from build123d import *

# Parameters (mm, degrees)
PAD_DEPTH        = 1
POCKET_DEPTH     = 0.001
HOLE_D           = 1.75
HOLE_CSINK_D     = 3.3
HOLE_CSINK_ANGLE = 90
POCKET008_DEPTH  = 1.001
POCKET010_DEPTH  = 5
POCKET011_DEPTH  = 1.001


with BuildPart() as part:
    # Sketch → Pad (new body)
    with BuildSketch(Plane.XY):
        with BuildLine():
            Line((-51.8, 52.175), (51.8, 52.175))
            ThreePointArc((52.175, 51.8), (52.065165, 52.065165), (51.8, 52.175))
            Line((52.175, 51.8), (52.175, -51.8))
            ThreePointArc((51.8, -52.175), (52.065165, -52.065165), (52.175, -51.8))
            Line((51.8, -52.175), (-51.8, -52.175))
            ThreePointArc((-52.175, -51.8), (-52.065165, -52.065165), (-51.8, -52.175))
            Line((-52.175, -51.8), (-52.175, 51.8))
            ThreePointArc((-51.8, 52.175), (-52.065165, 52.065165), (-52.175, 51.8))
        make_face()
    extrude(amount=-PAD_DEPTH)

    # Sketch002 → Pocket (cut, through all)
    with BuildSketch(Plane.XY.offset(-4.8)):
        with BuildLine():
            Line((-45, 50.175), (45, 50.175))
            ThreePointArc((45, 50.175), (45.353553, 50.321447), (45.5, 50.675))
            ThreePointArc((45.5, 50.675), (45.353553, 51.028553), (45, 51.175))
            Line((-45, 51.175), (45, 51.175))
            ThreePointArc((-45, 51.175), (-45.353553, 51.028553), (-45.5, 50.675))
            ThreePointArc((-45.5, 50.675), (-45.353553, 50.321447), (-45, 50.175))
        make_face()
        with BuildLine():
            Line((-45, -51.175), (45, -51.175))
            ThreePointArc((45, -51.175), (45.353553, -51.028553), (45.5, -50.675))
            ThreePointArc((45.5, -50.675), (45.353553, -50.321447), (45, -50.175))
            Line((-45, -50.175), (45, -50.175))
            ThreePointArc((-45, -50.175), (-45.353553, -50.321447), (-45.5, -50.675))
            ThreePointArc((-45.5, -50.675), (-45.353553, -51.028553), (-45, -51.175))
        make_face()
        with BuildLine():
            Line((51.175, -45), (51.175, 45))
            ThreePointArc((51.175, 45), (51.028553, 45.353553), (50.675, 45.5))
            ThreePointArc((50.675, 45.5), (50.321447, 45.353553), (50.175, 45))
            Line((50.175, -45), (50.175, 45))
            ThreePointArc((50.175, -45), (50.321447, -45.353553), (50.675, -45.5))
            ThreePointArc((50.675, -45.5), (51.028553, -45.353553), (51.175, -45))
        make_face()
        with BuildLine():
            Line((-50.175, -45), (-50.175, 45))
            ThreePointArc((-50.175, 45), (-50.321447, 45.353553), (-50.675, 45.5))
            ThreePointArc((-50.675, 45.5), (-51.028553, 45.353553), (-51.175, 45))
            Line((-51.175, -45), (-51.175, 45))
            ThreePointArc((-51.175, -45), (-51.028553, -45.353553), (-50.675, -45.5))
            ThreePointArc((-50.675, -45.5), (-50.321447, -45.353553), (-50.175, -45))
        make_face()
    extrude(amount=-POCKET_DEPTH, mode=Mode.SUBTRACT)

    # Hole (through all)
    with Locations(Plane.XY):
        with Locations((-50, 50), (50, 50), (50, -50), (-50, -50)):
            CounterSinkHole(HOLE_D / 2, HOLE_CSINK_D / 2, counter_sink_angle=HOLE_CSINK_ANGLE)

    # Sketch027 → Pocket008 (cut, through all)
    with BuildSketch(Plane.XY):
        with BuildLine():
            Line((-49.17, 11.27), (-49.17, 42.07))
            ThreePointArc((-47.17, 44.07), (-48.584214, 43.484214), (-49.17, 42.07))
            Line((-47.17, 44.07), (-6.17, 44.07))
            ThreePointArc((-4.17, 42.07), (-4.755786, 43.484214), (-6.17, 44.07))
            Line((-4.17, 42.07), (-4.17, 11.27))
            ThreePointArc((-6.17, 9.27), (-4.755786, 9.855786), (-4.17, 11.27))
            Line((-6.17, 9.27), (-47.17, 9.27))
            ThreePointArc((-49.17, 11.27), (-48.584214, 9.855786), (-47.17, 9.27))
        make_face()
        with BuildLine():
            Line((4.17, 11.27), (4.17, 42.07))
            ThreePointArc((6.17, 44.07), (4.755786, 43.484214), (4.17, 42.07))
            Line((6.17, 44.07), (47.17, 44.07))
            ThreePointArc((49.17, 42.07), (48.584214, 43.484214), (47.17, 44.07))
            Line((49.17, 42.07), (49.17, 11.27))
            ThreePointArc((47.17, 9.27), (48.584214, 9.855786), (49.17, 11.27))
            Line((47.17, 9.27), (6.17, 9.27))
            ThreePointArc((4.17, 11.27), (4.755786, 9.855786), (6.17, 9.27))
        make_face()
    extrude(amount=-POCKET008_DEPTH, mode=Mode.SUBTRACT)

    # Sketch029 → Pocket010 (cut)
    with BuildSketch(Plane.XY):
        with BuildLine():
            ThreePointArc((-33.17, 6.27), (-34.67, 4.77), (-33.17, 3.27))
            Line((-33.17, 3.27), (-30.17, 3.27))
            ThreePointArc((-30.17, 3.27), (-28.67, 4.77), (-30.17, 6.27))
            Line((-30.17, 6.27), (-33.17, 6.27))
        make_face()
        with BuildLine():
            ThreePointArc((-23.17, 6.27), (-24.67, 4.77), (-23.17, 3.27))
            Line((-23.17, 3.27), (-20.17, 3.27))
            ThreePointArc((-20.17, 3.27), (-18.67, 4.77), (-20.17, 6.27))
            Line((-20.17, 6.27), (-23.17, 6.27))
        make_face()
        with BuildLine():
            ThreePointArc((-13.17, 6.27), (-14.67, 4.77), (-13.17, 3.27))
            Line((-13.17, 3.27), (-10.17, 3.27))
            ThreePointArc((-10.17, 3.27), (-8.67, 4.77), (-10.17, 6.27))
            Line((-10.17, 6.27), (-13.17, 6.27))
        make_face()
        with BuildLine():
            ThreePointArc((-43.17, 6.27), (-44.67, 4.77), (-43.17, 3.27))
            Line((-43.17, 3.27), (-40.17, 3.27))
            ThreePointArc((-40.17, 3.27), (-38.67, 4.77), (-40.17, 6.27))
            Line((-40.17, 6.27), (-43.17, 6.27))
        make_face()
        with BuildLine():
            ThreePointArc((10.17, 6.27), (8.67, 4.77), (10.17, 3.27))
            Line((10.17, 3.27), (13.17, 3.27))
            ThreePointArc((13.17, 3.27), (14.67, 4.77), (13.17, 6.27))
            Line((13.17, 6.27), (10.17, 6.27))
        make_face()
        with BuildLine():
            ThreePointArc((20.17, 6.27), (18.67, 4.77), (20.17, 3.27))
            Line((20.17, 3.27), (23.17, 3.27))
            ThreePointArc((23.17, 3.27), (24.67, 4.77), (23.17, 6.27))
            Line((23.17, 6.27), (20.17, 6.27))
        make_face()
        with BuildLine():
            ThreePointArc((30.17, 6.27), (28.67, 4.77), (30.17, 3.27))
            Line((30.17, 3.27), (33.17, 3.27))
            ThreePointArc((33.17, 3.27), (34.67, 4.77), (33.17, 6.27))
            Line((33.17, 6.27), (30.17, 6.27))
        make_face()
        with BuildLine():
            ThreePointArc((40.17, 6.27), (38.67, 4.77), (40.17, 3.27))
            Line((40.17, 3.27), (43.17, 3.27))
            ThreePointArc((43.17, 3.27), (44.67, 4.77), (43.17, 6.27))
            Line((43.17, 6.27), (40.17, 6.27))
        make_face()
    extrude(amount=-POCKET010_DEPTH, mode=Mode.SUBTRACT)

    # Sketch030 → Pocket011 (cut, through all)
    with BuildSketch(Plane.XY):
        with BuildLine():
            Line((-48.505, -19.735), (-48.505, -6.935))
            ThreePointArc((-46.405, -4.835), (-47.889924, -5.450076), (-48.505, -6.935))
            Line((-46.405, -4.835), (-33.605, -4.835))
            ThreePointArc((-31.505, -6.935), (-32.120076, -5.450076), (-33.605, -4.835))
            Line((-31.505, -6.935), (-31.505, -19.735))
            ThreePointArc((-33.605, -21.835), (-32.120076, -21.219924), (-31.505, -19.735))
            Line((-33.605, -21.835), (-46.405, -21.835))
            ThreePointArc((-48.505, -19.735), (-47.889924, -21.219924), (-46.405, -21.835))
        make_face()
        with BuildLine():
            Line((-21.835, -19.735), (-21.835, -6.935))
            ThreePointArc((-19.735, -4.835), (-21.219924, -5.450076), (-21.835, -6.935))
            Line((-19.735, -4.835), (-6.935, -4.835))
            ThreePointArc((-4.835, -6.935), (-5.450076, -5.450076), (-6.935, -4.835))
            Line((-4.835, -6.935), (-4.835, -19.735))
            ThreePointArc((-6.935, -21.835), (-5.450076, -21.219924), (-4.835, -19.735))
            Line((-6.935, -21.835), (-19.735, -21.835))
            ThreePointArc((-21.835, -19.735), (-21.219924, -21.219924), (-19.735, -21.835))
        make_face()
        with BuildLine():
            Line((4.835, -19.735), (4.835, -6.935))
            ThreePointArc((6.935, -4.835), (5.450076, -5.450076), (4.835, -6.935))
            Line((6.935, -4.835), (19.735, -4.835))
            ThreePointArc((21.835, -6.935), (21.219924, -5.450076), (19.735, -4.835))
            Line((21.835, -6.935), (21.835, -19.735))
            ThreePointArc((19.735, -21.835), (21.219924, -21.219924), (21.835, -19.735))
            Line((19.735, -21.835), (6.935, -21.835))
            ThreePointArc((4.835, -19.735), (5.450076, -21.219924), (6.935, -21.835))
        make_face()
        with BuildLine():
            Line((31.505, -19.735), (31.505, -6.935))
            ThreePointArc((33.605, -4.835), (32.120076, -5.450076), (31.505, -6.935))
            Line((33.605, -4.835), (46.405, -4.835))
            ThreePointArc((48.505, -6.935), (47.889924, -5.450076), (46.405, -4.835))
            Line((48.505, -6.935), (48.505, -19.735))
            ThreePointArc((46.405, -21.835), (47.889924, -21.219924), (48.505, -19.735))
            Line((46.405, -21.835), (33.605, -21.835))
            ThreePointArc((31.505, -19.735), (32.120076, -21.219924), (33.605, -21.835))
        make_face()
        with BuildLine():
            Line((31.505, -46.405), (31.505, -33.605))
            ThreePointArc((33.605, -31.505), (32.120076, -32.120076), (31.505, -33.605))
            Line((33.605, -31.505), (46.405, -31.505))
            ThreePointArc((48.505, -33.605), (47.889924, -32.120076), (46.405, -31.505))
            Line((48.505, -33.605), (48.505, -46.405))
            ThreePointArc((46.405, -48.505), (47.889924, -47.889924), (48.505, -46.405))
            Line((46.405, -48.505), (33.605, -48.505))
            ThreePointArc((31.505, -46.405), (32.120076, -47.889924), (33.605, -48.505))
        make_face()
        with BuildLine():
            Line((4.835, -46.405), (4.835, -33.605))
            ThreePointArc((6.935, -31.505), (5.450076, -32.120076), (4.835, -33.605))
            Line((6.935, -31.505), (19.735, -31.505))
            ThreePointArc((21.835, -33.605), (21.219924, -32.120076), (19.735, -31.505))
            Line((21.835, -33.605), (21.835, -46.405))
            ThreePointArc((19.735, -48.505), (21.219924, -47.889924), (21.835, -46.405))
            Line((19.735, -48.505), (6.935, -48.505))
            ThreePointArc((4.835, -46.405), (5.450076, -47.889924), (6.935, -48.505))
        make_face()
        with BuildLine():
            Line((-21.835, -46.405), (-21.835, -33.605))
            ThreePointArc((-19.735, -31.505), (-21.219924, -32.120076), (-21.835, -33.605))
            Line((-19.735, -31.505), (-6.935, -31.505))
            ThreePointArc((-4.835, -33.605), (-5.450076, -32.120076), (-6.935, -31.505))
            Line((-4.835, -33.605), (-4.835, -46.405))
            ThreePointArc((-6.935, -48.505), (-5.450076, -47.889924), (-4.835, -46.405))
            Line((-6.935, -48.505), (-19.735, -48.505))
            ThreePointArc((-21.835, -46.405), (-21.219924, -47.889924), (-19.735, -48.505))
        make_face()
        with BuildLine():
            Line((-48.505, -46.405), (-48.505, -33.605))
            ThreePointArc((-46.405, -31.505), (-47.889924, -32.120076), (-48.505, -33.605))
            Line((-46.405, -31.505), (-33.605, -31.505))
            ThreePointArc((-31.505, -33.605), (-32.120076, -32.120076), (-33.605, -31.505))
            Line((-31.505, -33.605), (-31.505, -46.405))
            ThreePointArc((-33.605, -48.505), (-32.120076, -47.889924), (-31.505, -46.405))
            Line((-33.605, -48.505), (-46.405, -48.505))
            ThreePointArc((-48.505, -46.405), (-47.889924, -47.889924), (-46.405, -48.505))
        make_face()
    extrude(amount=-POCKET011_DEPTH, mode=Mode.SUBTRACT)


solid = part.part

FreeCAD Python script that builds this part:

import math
import FreeCAD as App
import Part
import Sketcher

doc = App.newDocument("Part")
body = doc.addObject("PartDesign::Body", "Body")

sketch1 = body.newObject("Sketcher::SketchObject", "Sketch")
sketch1.AttachmentSupport = (doc.getObject("XY_Plane"), [""])
sketch1.MapMode = "FlatFace"
sketch1.addGeometry(Part.LineSegment(App.Vector(51.8, 52.17, 0), App.Vector(-51.8, 52.17, 0)), False)
sketch1.addGeometry(Part.ArcOfCircle(Part.Circle(App.Vector(-51.8, 51.8, 0), App.Vector(0, 0, 1), 0.38), math.radians(90), math.radians(180)), False)
sketch1.addGeometry(Part.LineSegment(App.Vector(-52.17, 51.8, 0), App.Vector(-52.17, -51.8, 0)), False)
sketch1.addGeometry(Part.ArcOfCircle(Part.Circle(App.Vector(-51.8, -51.8, 0), App.Vector(0, 0, 1), 0.38), math.radians(-180), math.radians(-90)), False)
sketch1.addGeometry(Part.LineSegment(App.Vector(-51.8, -52.17, 0), App.Vector(51.8, -52.17, 0)), False)
sketch1.addGeometry(Part.ArcOfCircle(Part.Circle(App.Vector(51.8, -51.8, 0), App.Vector(0, 0, 1), 0.38), math.radians(-90), math.radians(0)), False)
sketch1.addGeometry(Part.LineSegment(App.Vector(52.17, -51.8, 0), App.Vector(52.17, 51.8, 0)), False)
sketch1.addGeometry(Part.ArcOfCircle(Part.Circle(App.Vector(51.8, 51.8, 0), App.Vector(0, 0, 1), 0.38), math.radians(0), math.radians(90)), False)
sketch1.addConstraint(Sketcher.Constraint("Tangent", 0, 2, 1, 1))
sketch1.addConstraint(Sketcher.Constraint("Tangent", 1, 2, 2, 1))
sketch1.addConstraint(Sketcher.Constraint("Tangent", 2, 2, 3, 1))
sketch1.addConstraint(Sketcher.Constraint("Tangent", 3, 2, 4, 1))
sketch1.addConstraint(Sketcher.Constraint("Tangent", 4, 2, 5, 1))
sketch1.addConstraint(Sketcher.Constraint("Tangent", 5, 2, 6, 1))
sketch1.addConstraint(Sketcher.Constraint("Tangent", 6, 2, 7, 1))
sketch1.addConstraint(Sketcher.Constraint("Tangent", 7, 2, 0, 1))
sketch1.addConstraint(Sketcher.Constraint("Horizontal", 0))
sketch1.addConstraint(Sketcher.Constraint("Vertical", 2))
sketch1.addConstraint(Sketcher.Constraint("Horizontal", 4))
sketch1.addConstraint(Sketcher.Constraint("Vertical", 6))
sketch1.addConstraint(Sketcher.Constraint("Equal", 1, 3))
sketch1.addConstraint(Sketcher.Constraint("Equal", 3, 5))
sketch1.addConstraint(Sketcher.Constraint("Equal", 5, 7))
sketch1.addConstraint(Sketcher.Constraint("Symmetric", 1, 3, 5, 3, -1, 1))
sketch1.addConstraint(Sketcher.Constraint("Equal", 4, 2))
sketch1.addConstraint(Sketcher.Constraint("DistanceX", 0, 2, 0, 1, 103.6))
sketch1.addConstraint(Sketcher.Constraint("Radius", 1, 0.375))
pad1 = body.newObject("PartDesign::Pad", "Pad")
pad1.Profile = sketch1
pad1.Length = 1
pad1.Reversed = True

sketch2 = body.newObject("Sketcher::SketchObject", "Sketch001")
sketch2.AttachmentSupport = (doc.getObject("XY_Plane"), [""])
sketch2.MapMode = "FlatFace"
sketch2.AttachmentOffset = App.Placement(App.Vector(0, 0, -4.8), App.Rotation())
sketch2.addGeometry(Part.LineSegment(App.Vector(-45, 50.2, 0), App.Vector(45, 50.2, 0)), False)
sketch2.addGeometry(Part.ArcOfCircle(Part.Circle(App.Vector(45, 50.7, 0), App.Vector(0, 0, 1), 0.5), math.radians(-90), math.radians(0)), False)
sketch2.addGeometry(Part.ArcOfCircle(Part.Circle(App.Vector(45, 50.7, 0), App.Vector(0, 0, 1), 0.5), math.radians(0), math.radians(90)), False)
sketch2.addGeometry(Part.LineSegment(App.Vector(45, 51.2, 0), App.Vector(-45, 51.2, 0)), False)
sketch2.addGeometry(Part.ArcOfCircle(Part.Circle(App.Vector(-45, 50.7, 0), App.Vector(0, 0, 1), 0.5), math.radians(90), math.radians(180)), False)
sketch2.addGeometry(Part.ArcOfCircle(Part.Circle(App.Vector(-45, 50.7, 0), App.Vector(0, 0, 1), 0.5), math.radians(-180), math.radians(-90)), False)
sketch2.addGeometry(Part.LineSegment(App.Vector(-45, -51.2, 0), App.Vector(45, -51.2, 0)), False)
sketch2.addGeometry(Part.ArcOfCircle(Part.Circle(App.Vector(45, -50.7, 0), App.Vector(0, 0, 1), 0.5), math.radians(-90), math.radians(0)), False)
sketch2.addGeometry(Part.ArcOfCircle(Part.Circle(App.Vector(45, -50.7, 0), App.Vector(0, 0, 1), 0.5), math.radians(0), math.radians(90)), False)
sketch2.addGeometry(Part.LineSegment(App.Vector(45, -50.2, 0), App.Vector(-45, -50.2, 0)), False)
sketch2.addGeometry(Part.ArcOfCircle(Part.Circle(App.Vector(-45, -50.7, 0), App.Vector(0, 0, 1), 0.5), math.radians(90), math.radians(180)), False)
sketch2.addGeometry(Part.ArcOfCircle(Part.Circle(App.Vector(-45, -50.7, 0), App.Vector(0, 0, 1), 0.5), math.radians(-180), math.radians(-90)), False)
sketch2.addGeometry(Part.LineSegment(App.Vector(51.2, -45, 0), App.Vector(51.2, 45, 0)), False)
sketch2.addGeometry(Part.ArcOfCircle(Part.Circle(App.Vector(50.7, 45, 0), App.Vector(0, 0, 1), 0.5), math.radians(0), math.radians(90)), False)
sketch2.addGeometry(Part.ArcOfCircle(Part.Circle(App.Vector(50.7, 45, 0), App.Vector(0, 0, 1), 0.5), math.radians(90), math.radians(180)), False)
sketch2.addGeometry(Part.LineSegment(App.Vector(50.2, 45, 0), App.Vector(50.2, -45, 0)), False)
sketch2.addGeometry(Part.ArcOfCircle(Part.Circle(App.Vector(50.7, -45, 0), App.Vector(0, 0, 1), 0.5), math.radians(-180), math.radians(-90)), False)
sketch2.addGeometry(Part.ArcOfCircle(Part.Circle(App.Vector(50.7, -45, 0), App.Vector(0, 0, 1), 0.5), math.radians(-90), math.radians(0)), False)
sketch2.addGeometry(Part.LineSegment(App.Vector(-50.2, -45, 0), App.Vector(-50.2, 45, 0)), False)
sketch2.addGeometry(Part.ArcOfCircle(Part.Circle(App.Vector(-50.7, 45, 0), App.Vector(0, 0, 1), 0.5), math.radians(0), math.radians(90)), False)
sketch2.addGeometry(Part.ArcOfCircle(Part.Circle(App.Vector(-50.7, 45, 0), App.Vector(0, 0, 1), 0.5), math.radians(90), math.radians(180)), False)
sketch2.addGeometry(Part.LineSegment(App.Vector(-51.2, 45, 0), App.Vector(-51.2, -45, 0)), False)
sketch2.addGeometry(Part.ArcOfCircle(Part.Circle(App.Vector(-50.7, -45, 0), App.Vector(0, 0, 1), 0.5), math.radians(-180), math.radians(-90)), False)
sketch2.addGeometry(Part.ArcOfCircle(Part.Circle(App.Vector(-50.7, -45, 0), App.Vector(0, 0, 1), 0.5), math.radians(-90), math.radians(0)), False)
sketch2.addConstraint(Sketcher.Constraint("Coincident", 0, 2, 1, 1))
sketch2.addConstraint(Sketcher.Constraint("Coincident", 1, 2, 2, 1))
sketch2.addConstraint(Sketcher.Constraint("Coincident", 2, 2, 3, 1))
sketch2.addConstraint(Sketcher.Constraint("Coincident", 3, 2, 4, 1))
sketch2.addConstraint(Sketcher.Constraint("Coincident", 4, 2, 5, 1))
sketch2.addConstraint(Sketcher.Constraint("Coincident", 5, 2, 0, 1))
sketch2.addConstraint(Sketcher.Constraint("Coincident", 6, 2, 7, 1))
sketch2.addConstraint(Sketcher.Constraint("Coincident", 7, 2, 8, 1))
sketch2.addConstraint(Sketcher.Constraint("Coincident", 8, 2, 9, 1))
sketch2.addConstraint(Sketcher.Constraint("Coincident", 9, 2, 10, 1))
sketch2.addConstraint(Sketcher.Constraint("Coincident", 10, 2, 11, 1))
sketch2.addConstraint(Sketcher.Constraint("Coincident", 11, 2, 6, 1))
sketch2.addConstraint(Sketcher.Constraint("Coincident", 12, 2, 13, 1))
sketch2.addConstraint(Sketcher.Constraint("Coincident", 13, 2, 14, 1))
sketch2.addConstraint(Sketcher.Constraint("Coincident", 14, 2, 15, 1))
sketch2.addConstraint(Sketcher.Constraint("Coincident", 15, 2, 16, 1))
sketch2.addConstraint(Sketcher.Constraint("Coincident", 16, 2, 17, 1))
sketch2.addConstraint(Sketcher.Constraint("Coincident", 17, 2, 12, 1))
sketch2.addConstraint(Sketcher.Constraint("Coincident", 18, 2, 19, 1))
sketch2.addConstraint(Sketcher.Constraint("Coincident", 19, 2, 20, 1))
sketch2.addConstraint(Sketcher.Constraint("Coincident", 20, 2, 21, 1))
sketch2.addConstraint(Sketcher.Constraint("Coincident", 21, 2, 22, 1))
sketch2.addConstraint(Sketcher.Constraint("Coincident", 22, 2, 23, 1))
sketch2.addConstraint(Sketcher.Constraint("Coincident", 23, 2, 18, 1))
sketch2.addConstraint(Sketcher.Constraint("Horizontal", 0))
sketch2.addConstraint(Sketcher.Constraint("Horizontal", 3))
sketch2.addConstraint(Sketcher.Constraint("Horizontal", 6))
sketch2.addConstraint(Sketcher.Constraint("Horizontal", 9))
sketch2.addConstraint(Sketcher.Constraint("Vertical", 12))
sketch2.addConstraint(Sketcher.Constraint("Vertical", 15))
sketch2.addConstraint(Sketcher.Constraint("Vertical", 18))
sketch2.addConstraint(Sketcher.Constraint("Vertical", 21))
sketch2.addConstraint(Sketcher.Constraint("Coincident", 2, 3, 1, 3))
sketch2.addConstraint(Sketcher.Constraint("Coincident", 5, 3, 4, 3))
sketch2.addConstraint(Sketcher.Constraint("Coincident", 8, 3, 7, 3))
sketch2.addConstraint(Sketcher.Constraint("Coincident", 11, 3, 10, 3))
sketch2.addConstraint(Sketcher.Constraint("Coincident", 14, 3, 13, 3))
sketch2.addConstraint(Sketcher.Constraint("Coincident", 17, 3, 16, 3))
sketch2.addConstraint(Sketcher.Constraint("Coincident", 20, 3, 19, 3))
sketch2.addConstraint(Sketcher.Constraint("Coincident", 23, 3, 22, 3))
sketch2.addConstraint(Sketcher.Constraint("Equal", 5, 7))
sketch2.addConstraint(Sketcher.Constraint("Equal", 11, 13))
sketch2.addConstraint(Sketcher.Constraint("Equal", 17, 19))
sketch2.addConstraint(Sketcher.Constraint("Symmetric", 4, 3, 7, 3, -1, 1))
sketch2.addConstraint(Sketcher.Constraint("Symmetric", 16, 3, 19, 3, -1, 1))
sketch2.addConstraint(Sketcher.Constraint("Symmetric", 1, 2, 10, 2, -1, 1))
sketch2.addConstraint(Sketcher.Constraint("Symmetric", 13, 2, 22, 2, -1, 1))
sketch2.addConstraint(Sketcher.Constraint("Symmetric", 1, 2, 4, 2, -2))
sketch2.addConstraint(Sketcher.Constraint("Symmetric", 13, 2, 19, 2, -2))
sketch2.addConstraint(Sketcher.Constraint("Horizontal", 5, 3, 1, 2))
sketch2.addConstraint(Sketcher.Constraint("Horizontal", 11, 3, 7, 2))
sketch2.addConstraint(Sketcher.Constraint("Horizontal", 20, 3, 12, 2))
sketch2.addConstraint(Sketcher.Constraint("Horizontal", 12, 2, 14, 2))
sketch2.addConstraint(Sketcher.Constraint("Horizontal", 23, 3, 15, 2))
sketch2.addConstraint(Sketcher.Constraint("Horizontal", 15, 2, 17, 2))
sketch2.addConstraint(Sketcher.Constraint("Horizontal", 14, 2, 18, 2))
sketch2.addConstraint(Sketcher.Constraint("Horizontal", 18, 2, 20, 2))
sketch2.addConstraint(Sketcher.Constraint("Horizontal", 17, 2, 21, 2))
sketch2.addConstraint(Sketcher.Constraint("Horizontal", 21, 2, 23, 2))
sketch2.addConstraint(Sketcher.Constraint("Vertical", 8, 3, 0, 2))
sketch2.addConstraint(Sketcher.Constraint("Vertical", 0, 2, 2, 2))
sketch2.addConstraint(Sketcher.Constraint("Vertical", 11, 3, 3, 2))
sketch2.addConstraint(Sketcher.Constraint("Vertical", 3, 2, 5, 2))
sketch2.addConstraint(Sketcher.Constraint("Vertical", 2, 2, 6, 2))
sketch2.addConstraint(Sketcher.Constraint("Vertical", 6, 2, 8, 2))
sketch2.addConstraint(Sketcher.Constraint("Vertical", 5, 2, 9, 2))
sketch2.addConstraint(Sketcher.Constraint("Vertical", 9, 2, 11, 2))
sketch2.addConstraint(Sketcher.Constraint("Vertical", 17, 3, 13, 2))
sketch2.addConstraint(Sketcher.Constraint("Vertical", 13, 2, 16, 2))
sketch2.addConstraint(Sketcher.Constraint("Equal", 9, 12))
sketch2.addConstraint(Sketcher.Constraint("Radius", 1, 0.500001))
sketch2.addConstraint(Sketcher.Constraint("DistanceX", 0, 1, 0, 2, 90.0))
sketch2.addConstraint(Sketcher.Constraint("DistanceY", 7, 3, 1, 3, 101.35))
sketch2.addConstraint(Sketcher.Constraint("DistanceX", -1, 1, 13, 3, 50.674999))
pocket1 = body.newObject("PartDesign::Pocket", "Pocket")
pocket1.Profile = sketch2
pocket1.Type = "ThroughAll"

sketch3 = body.newObject("Sketcher::SketchObject", "Sketch002")
sketch3.AttachmentSupport = (doc.getObject("XY_Plane"), [""])
sketch3.MapMode = "FlatFace"
sketch3.addGeometry(Part.Circle(App.Vector(-50, 50, 0), App.Vector(0, 0, 1), 0.9), False)
sketch3.addGeometry(Part.Circle(App.Vector(50, 50, 0), App.Vector(0, 0, 1), 0.9), False)
sketch3.addGeometry(Part.Circle(App.Vector(50, -50, 0), App.Vector(0, 0, 1), 0.9), False)
sketch3.addGeometry(Part.Circle(App.Vector(-50, -50, 0), App.Vector(0, 0, 1), 0.9), False)
sketch3.addConstraint(Sketcher.Constraint("Equal", 0, 1))
sketch3.addConstraint(Sketcher.Constraint("Equal", 1, 2))
sketch3.addConstraint(Sketcher.Constraint("Equal", 2, 3))
sketch3.addConstraint(Sketcher.Constraint("Symmetric", 0, 3, 2, 3, -1, 1))
sketch3.addConstraint(Sketcher.Constraint("Symmetric", 1, 3, 3, 3, -1, 1))
sketch3.addConstraint(Sketcher.Constraint("Symmetric", 0, 3, 1, 3, -2))
sketch3.addConstraint(Sketcher.Constraint("Diameter", 0, 1.75))
sketch3.addConstraint(Sketcher.Constraint("DistanceX", 0, 3, -1, 1, 50.0))
sketch3.addConstraint(Sketcher.Constraint("DistanceY", -1, 1, 0, 3, 50.0))
doc.recompute()
hole = body.newObject("PartDesign::Hole", "Hole")
hole.Profile = sketch3
hole.ThreadType = "None"
hole.Diameter = 1.75
hole.DepthType = "ThroughAll"
hole.HoleCutType = "Countersink"
hole.HoleCutDiameter = 3.3
hole.HoleCutCountersinkAngle = 90

sketch4 = body.newObject("Sketcher::SketchObject", "Sketch003")
sketch4.AttachmentSupport = (doc.getObject("XY_Plane"), [""])
sketch4.MapMode = "FlatFace"
sketch4.addGeometry(Part.LineSegment(App.Vector(-49.2, 42.1, 0), App.Vector(-49.2, 11.3, 0)), False)
sketch4.addGeometry(Part.ArcOfCircle(Part.Circle(App.Vector(-47.2, 11.3, 0), App.Vector(0, 0, 1), 2), math.radians(180), math.radians(270)), False)
sketch4.addGeometry(Part.LineSegment(App.Vector(-47.2, 9.3, 0), App.Vector(-6.2, 9.3, 0)), False)
sketch4.addGeometry(Part.ArcOfCircle(Part.Circle(App.Vector(-6.2, 11.3, 0), App.Vector(0, 0, 1), 2), math.radians(-90), math.radians(0)), False)
sketch4.addGeometry(Part.LineSegment(App.Vector(-4.2, 11.3, 0), App.Vector(-4.2, 42.1, 0)), False)
sketch4.addGeometry(Part.ArcOfCircle(Part.Circle(App.Vector(-6.2, 42.1, 0), App.Vector(0, 0, 1), 2), math.radians(0), math.radians(90)), False)
sketch4.addGeometry(Part.LineSegment(App.Vector(-6.2, 44.1, 0), App.Vector(-47.2, 44.1, 0)), False)
sketch4.addGeometry(Part.ArcOfCircle(Part.Circle(App.Vector(-47.2, 42.1, 0), App.Vector(0, 0, 1), 2), math.radians(90), math.radians(180)), False)
sketch4.addGeometry(Part.LineSegment(App.Vector(4.2, 42.1, 0), App.Vector(4.2, 11.3, 0)), False)
sketch4.addGeometry(Part.ArcOfCircle(Part.Circle(App.Vector(6.2, 11.3, 0), App.Vector(0, 0, 1), 2), math.radians(180), math.radians(270)), False)
sketch4.addGeometry(Part.LineSegment(App.Vector(6.2, 9.3, 0), App.Vector(47.2, 9.3, 0)), False)
sketch4.addGeometry(Part.ArcOfCircle(Part.Circle(App.Vector(47.2, 11.3, 0), App.Vector(0, 0, 1), 2), math.radians(-90), math.radians(0)), False)
sketch4.addGeometry(Part.LineSegment(App.Vector(49.2, 11.3, 0), App.Vector(49.2, 42.1, 0)), False)
sketch4.addGeometry(Part.ArcOfCircle(Part.Circle(App.Vector(47.2, 42.1, 0), App.Vector(0, 0, 1), 2), math.radians(0), math.radians(90)), False)
sketch4.addGeometry(Part.LineSegment(App.Vector(47.2, 44.1, 0), App.Vector(6.2, 44.1, 0)), False)
sketch4.addGeometry(Part.ArcOfCircle(Part.Circle(App.Vector(6.2, 42.1, 0), App.Vector(0, 0, 1), 2), math.radians(90), math.radians(180)), False)
sketch4.addConstraint(Sketcher.Constraint("Tangent", 0, 2, 1, 1))
sketch4.addConstraint(Sketcher.Constraint("Tangent", 1, 2, 2, 1))
sketch4.addConstraint(Sketcher.Constraint("Tangent", 2, 2, 3, 1))
sketch4.addConstraint(Sketcher.Constraint("Tangent", 3, 2, 4, 1))
sketch4.addConstraint(Sketcher.Constraint("Tangent", 4, 2, 5, 1))
sketch4.addConstraint(Sketcher.Constraint("Tangent", 5, 2, 6, 1))
sketch4.addConstraint(Sketcher.Constraint("Tangent", 6, 2, 7, 1))
sketch4.addConstraint(Sketcher.Constraint("Tangent", 7, 2, 0, 1))
sketch4.addConstraint(Sketcher.Constraint("Tangent", 8, 2, 9, 1))
sketch4.addConstraint(Sketcher.Constraint("Tangent", 9, 2, 10, 1))
sketch4.addConstraint(Sketcher.Constraint("Tangent", 10, 2, 11, 1))
sketch4.addConstraint(Sketcher.Constraint("Tangent", 11, 2, 12, 1))
sketch4.addConstraint(Sketcher.Constraint("Tangent", 12, 2, 13, 1))
sketch4.addConstraint(Sketcher.Constraint("Tangent", 13, 2, 14, 1))
sketch4.addConstraint(Sketcher.Constraint("Tangent", 14, 2, 15, 1))
sketch4.addConstraint(Sketcher.Constraint("Tangent", 15, 2, 8, 1))
sketch4.addConstraint(Sketcher.Constraint("Vertical", 0))
sketch4.addConstraint(Sketcher.Constraint("Horizontal", 2))
sketch4.addConstraint(Sketcher.Constraint("Vertical", 4))
sketch4.addConstraint(Sketcher.Constraint("Horizontal", 6))
sketch4.addConstraint(Sketcher.Constraint("Vertical", 8))
sketch4.addConstraint(Sketcher.Constraint("Horizontal", 10))
sketch4.addConstraint(Sketcher.Constraint("Vertical", 12))
sketch4.addConstraint(Sketcher.Constraint("Horizontal", 14))
sketch4.addConstraint(Sketcher.Constraint("Equal", 1, 3))
sketch4.addConstraint(Sketcher.Constraint("Equal", 3, 5))
sketch4.addConstraint(Sketcher.Constraint("Equal", 5, 7))
sketch4.addConstraint(Sketcher.Constraint("Equal", 7, 9))
sketch4.addConstraint(Sketcher.Constraint("Equal", 9, 11))
sketch4.addConstraint(Sketcher.Constraint("Equal", 11, 13))
sketch4.addConstraint(Sketcher.Constraint("Equal", 13, 15))
sketch4.addConstraint(Sketcher.Constraint("Symmetric", 3, 3, 9, 3, -2))
sketch4.addConstraint(Sketcher.Constraint("Symmetric", 7, 3, 13, 3, -2))
sketch4.addConstraint(Sketcher.Constraint("Radius", 1, 1.999999))
sketch4.addConstraint(Sketcher.Constraint("DistanceX", 2, 1, 2, 2, 41.0))
sketch4.addConstraint(Sketcher.Constraint("DistanceY", 0, 2, 0, 1, 30.8))
sketch4.addConstraint(Sketcher.Constraint("DistanceX", 1, 3, -1, 1, 47.170001))
sketch4.addConstraint(Sketcher.Constraint("DistanceY", -1, 1, 1, 3, 11.269999))
pocket2 = body.newObject("PartDesign::Pocket", "Pocket001")
pocket2.Profile = sketch4
pocket2.Type = "ThroughAll"

sketch5 = body.newObject("Sketcher::SketchObject", "Sketch004")
sketch5.AttachmentSupport = (doc.getObject("XY_Plane"), [""])
sketch5.MapMode = "FlatFace"
sketch5.addGeometry(Part.ArcOfCircle(Part.Circle(App.Vector(-33.2, 4.8, 0), App.Vector(0, 0, 1), 1.5), math.radians(90), math.radians(270)), False)
sketch5.addGeometry(Part.LineSegment(App.Vector(-33.2, 3.3, 0), App.Vector(-30.2, 3.3, 0)), False)
sketch5.addGeometry(Part.ArcOfCircle(Part.Circle(App.Vector(-30.2, 4.8, 0), App.Vector(0, 0, 1), 1.5), math.radians(-90), math.radians(90)), False)
sketch5.addGeometry(Part.LineSegment(App.Vector(-30.2, 6.3, 0), App.Vector(-33.2, 6.3, 0)), False)
sketch5.addGeometry(Part.ArcOfCircle(Part.Circle(App.Vector(-23.2, 4.8, 0), App.Vector(0, 0, 1), 1.5), math.radians(90), math.radians(270)), False)
sketch5.addGeometry(Part.LineSegment(App.Vector(-23.2, 3.3, 0), App.Vector(-20.2, 3.3, 0)), False)
sketch5.addGeometry(Part.ArcOfCircle(Part.Circle(App.Vector(-20.2, 4.8, 0), App.Vector(0, 0, 1), 1.5), math.radians(-90), math.radians(90)), False)
sketch5.addGeometry(Part.LineSegment(App.Vector(-20.2, 6.3, 0), App.Vector(-23.2, 6.3, 0)), False)
sketch5.addGeometry(Part.ArcOfCircle(Part.Circle(App.Vector(-13.2, 4.8, 0), App.Vector(0, 0, 1), 1.5), math.radians(90), math.radians(270)), False)
sketch5.addGeometry(Part.LineSegment(App.Vector(-13.2, 3.3, 0), App.Vector(-10.2, 3.3, 0)), False)
sketch5.addGeometry(Part.ArcOfCircle(Part.Circle(App.Vector(-10.2, 4.8, 0), App.Vector(0, 0, 1), 1.5), math.radians(-90), math.radians(90)), False)
sketch5.addGeometry(Part.LineSegment(App.Vector(-10.2, 6.3, 0), App.Vector(-13.2, 6.3, 0)), False)
sketch5.addGeometry(Part.ArcOfCircle(Part.Circle(App.Vector(-43.2, 4.8, 0), App.Vector(0, 0, 1), 1.5), math.radians(90), math.radians(270)), False)
sketch5.addGeometry(Part.LineSegment(App.Vector(-43.2, 3.3, 0), App.Vector(-40.2, 3.3, 0)), False)
sketch5.addGeometry(Part.ArcOfCircle(Part.Circle(App.Vector(-40.2, 4.8, 0), App.Vector(0, 0, 1), 1.5), math.radians(-90), math.radians(90)), False)
sketch5.addGeometry(Part.LineSegment(App.Vector(-40.2, 6.3, 0), App.Vector(-43.2, 6.3, 0)), False)
sketch5.addGeometry(Part.ArcOfCircle(Part.Circle(App.Vector(10.2, 4.8, 0), App.Vector(0, 0, 1), 1.5), math.radians(90), math.radians(270)), False)
sketch5.addGeometry(Part.LineSegment(App.Vector(10.2, 3.3, 0), App.Vector(13.2, 3.3, 0)), False)
sketch5.addGeometry(Part.ArcOfCircle(Part.Circle(App.Vector(13.2, 4.8, 0), App.Vector(0, 0, 1), 1.5), math.radians(-90), math.radians(90)), False)
sketch5.addGeometry(Part.LineSegment(App.Vector(13.2, 6.3, 0), App.Vector(10.2, 6.3, 0)), False)
sketch5.addGeometry(Part.ArcOfCircle(Part.Circle(App.Vector(20.2, 4.8, 0), App.Vector(0, 0, 1), 1.5), math.radians(90), math.radians(270)), False)
sketch5.addGeometry(Part.LineSegment(App.Vector(20.2, 3.3, 0), App.Vector(23.2, 3.3, 0)), False)
sketch5.addGeometry(Part.ArcOfCircle(Part.Circle(App.Vector(23.2, 4.8, 0), App.Vector(0, 0, 1), 1.5), math.radians(-90), math.radians(90)), False)
sketch5.addGeometry(Part.LineSegment(App.Vector(23.2, 6.3, 0), App.Vector(20.2, 6.3, 0)), False)
sketch5.addGeometry(Part.ArcOfCircle(Part.Circle(App.Vector(30.2, 4.8, 0), App.Vector(0, 0, 1), 1.5), math.radians(90), math.radians(270)), False)
sketch5.addGeometry(Part.LineSegment(App.Vector(30.2, 3.3, 0), App.Vector(33.2, 3.3, 0)), False)
sketch5.addGeometry(Part.ArcOfCircle(Part.Circle(App.Vector(33.2, 4.8, 0), App.Vector(0, 0, 1), 1.5), math.radians(-90), math.radians(90)), False)
sketch5.addGeometry(Part.LineSegment(App.Vector(33.2, 6.3, 0), App.Vector(30.2, 6.3, 0)), False)
sketch5.addGeometry(Part.ArcOfCircle(Part.Circle(App.Vector(40.2, 4.8, 0), App.Vector(0, 0, 1), 1.5), math.radians(90), math.radians(270)), False)
sketch5.addGeometry(Part.LineSegment(App.Vector(40.2, 3.3, 0), App.Vector(43.2, 3.3, 0)), False)
sketch5.addGeometry(Part.ArcOfCircle(Part.Circle(App.Vector(43.2, 4.8, 0), App.Vector(0, 0, 1), 1.5), math.radians(-90), math.radians(90)), False)
sketch5.addGeometry(Part.LineSegment(App.Vector(43.2, 6.3, 0), App.Vector(40.2, 6.3, 0)), False)
sketch5.addConstraint(Sketcher.Constraint("Tangent", 0, 2, 1, 1))
sketch5.addConstraint(Sketcher.Constraint("Tangent", 1, 2, 2, 1))
sketch5.addConstraint(Sketcher.Constraint("Tangent", 2, 2, 3, 1))
sketch5.addConstraint(Sketcher.Constraint("Tangent", 3, 2, 0, 1))
sketch5.addConstraint(Sketcher.Constraint("Tangent", 4, 2, 5, 1))
sketch5.addConstraint(Sketcher.Constraint("Tangent", 5, 2, 6, 1))
sketch5.addConstraint(Sketcher.Constraint("Tangent", 6, 2, 7, 1))
sketch5.addConstraint(Sketcher.Constraint("Tangent", 7, 2, 4, 1))
sketch5.addConstraint(Sketcher.Constraint("Tangent", 8, 2, 9, 1))
sketch5.addConstraint(Sketcher.Constraint("Tangent", 9, 2, 10, 1))
sketch5.addConstraint(Sketcher.Constraint("Tangent", 10, 2, 11, 1))
sketch5.addConstraint(Sketcher.Constraint("Tangent", 11, 2, 8, 1))
sketch5.addConstraint(Sketcher.Constraint("Tangent", 12, 2, 13, 1))
sketch5.addConstraint(Sketcher.Constraint("Tangent", 13, 2, 14, 1))
sketch5.addConstraint(Sketcher.Constraint("Tangent", 14, 2, 15, 1))
sketch5.addConstraint(Sketcher.Constraint("Tangent", 15, 2, 12, 1))
sketch5.addConstraint(Sketcher.Constraint("Tangent", 16, 2, 17, 1))
sketch5.addConstraint(Sketcher.Constraint("Tangent", 17, 2, 18, 1))
sketch5.addConstraint(Sketcher.Constraint("Tangent", 18, 2, 19, 1))
sketch5.addConstraint(Sketcher.Constraint("Tangent", 19, 2, 16, 1))
sketch5.addConstraint(Sketcher.Constraint("Tangent", 20, 2, 21, 1))
sketch5.addConstraint(Sketcher.Constraint("Tangent", 21, 2, 22, 1))
sketch5.addConstraint(Sketcher.Constraint("Tangent", 22, 2, 23, 1))
sketch5.addConstraint(Sketcher.Constraint("Tangent", 23, 2, 20, 1))
sketch5.addConstraint(Sketcher.Constraint("Tangent", 24, 2, 25, 1))
sketch5.addConstraint(Sketcher.Constraint("Tangent", 25, 2, 26, 1))
sketch5.addConstraint(Sketcher.Constraint("Tangent", 26, 2, 27, 1))
sketch5.addConstraint(Sketcher.Constraint("Tangent", 27, 2, 24, 1))
sketch5.addConstraint(Sketcher.Constraint("Tangent", 28, 2, 29, 1))
sketch5.addConstraint(Sketcher.Constraint("Tangent", 29, 2, 30, 1))
sketch5.addConstraint(Sketcher.Constraint("Tangent", 30, 2, 31, 1))
sketch5.addConstraint(Sketcher.Constraint("Tangent", 31, 2, 28, 1))
sketch5.addConstraint(Sketcher.Constraint("Horizontal", 1))
sketch5.addConstraint(Sketcher.Constraint("Horizontal", 3))
sketch5.addConstraint(Sketcher.Constraint("Horizontal", 5))
sketch5.addConstraint(Sketcher.Constraint("Horizontal", 7))
sketch5.addConstraint(Sketcher.Constraint("Horizontal", 9))
sketch5.addConstraint(Sketcher.Constraint("Horizontal", 11))
sketch5.addConstraint(Sketcher.Constraint("Horizontal", 13))
sketch5.addConstraint(Sketcher.Constraint("Horizontal", 15))
sketch5.addConstraint(Sketcher.Constraint("Horizontal", 17))
sketch5.addConstraint(Sketcher.Constraint("Horizontal", 19))
sketch5.addConstraint(Sketcher.Constraint("Horizontal", 21))
sketch5.addConstraint(Sketcher.Constraint("Horizontal", 23))
sketch5.addConstraint(Sketcher.Constraint("Horizontal", 25))
sketch5.addConstraint(Sketcher.Constraint("Horizontal", 27))
sketch5.addConstraint(Sketcher.Constraint("Horizontal", 29))
sketch5.addConstraint(Sketcher.Constraint("Horizontal", 31))
sketch5.addConstraint(Sketcher.Constraint("Equal", 2, 4))
sketch5.addConstraint(Sketcher.Constraint("Equal", 6, 8))
sketch5.addConstraint(Sketcher.Constraint("Equal", 10, 12))
sketch5.addConstraint(Sketcher.Constraint("Equal", 14, 16))
sketch5.addConstraint(Sketcher.Constraint("Equal", 18, 20))
sketch5.addConstraint(Sketcher.Constraint("Equal", 22, 24))
sketch5.addConstraint(Sketcher.Constraint("Equal", 26, 28))
sketch5.addConstraint(Sketcher.Constraint("Symmetric", 10, 3, 16, 3, -2))
sketch5.addConstraint(Sketcher.Constraint("Symmetric", 6, 3, 20, 3, -2))
sketch5.addConstraint(Sketcher.Constraint("Symmetric", 2, 3, 24, 3, -2))
sketch5.addConstraint(Sketcher.Constraint("Symmetric", 14, 3, 28, 3, -2))
sketch5.addConstraint(Sketcher.Constraint("Horizontal", 2, 3, 4, 3))
sketch5.addConstraint(Sketcher.Constraint("Horizontal", 6, 3, 8, 3))
sketch5.addConstraint(Sketcher.Constraint("Horizontal", 10, 3, 12, 3))
sketch5.addConstraint(Sketcher.Constraint("Equal", 3, 5))
sketch5.addConstraint(Sketcher.Constraint("Equal", 7, 9))
sketch5.addConstraint(Sketcher.Constraint("Equal", 11, 13))
sketch5.addConstraint(Sketcher.Constraint("Equal", 15, 17))
sketch5.addConstraint(Sketcher.Constraint("Equal", 19, 21))
sketch5.addConstraint(Sketcher.Constraint("Equal", 23, 25))
sketch5.addConstraint(Sketcher.Constraint("Equal", 27, 29))
sketch5.addConstraint(Sketcher.Constraint("Radius", 0, 1.5))
sketch5.addConstraint(Sketcher.Constraint("DistanceX", 1, 1, 1, 2, 3.0))
sketch5.addConstraint(Sketcher.Constraint("DistanceX", 2, 3, 4, 3, 7.0))
sketch5.addConstraint(Sketcher.Constraint("DistanceX", 6, 3, 8, 3, 7.0))
sketch5.addConstraint(Sketcher.Constraint("DistanceX", 12, 3, 0, 3, 10.0))
sketch5.addConstraint(Sketcher.Constraint("DistanceX", 0, 3, -1, 1, 33.17))
sketch5.addConstraint(Sketcher.Constraint("DistanceY", -1, 1, 0, 3, 4.77))
pocket3 = body.newObject("PartDesign::Pocket", "Pocket002")
pocket3.Profile = sketch5
pocket3.Length = 5

sketch6 = body.newObject("Sketcher::SketchObject", "Sketch005")
sketch6.AttachmentSupport = (doc.getObject("XY_Plane"), [""])
sketch6.MapMode = "FlatFace"
sketch6.addGeometry(Part.LineSegment(App.Vector(-48.5, -6.9, 0), App.Vector(-48.5, -19.7, 0)), False)
sketch6.addGeometry(Part.ArcOfCircle(Part.Circle(App.Vector(-46.4, -19.7, 0), App.Vector(0, 0, 1), 2.1), math.radians(-180), math.radians(-90)), False)
sketch6.addGeometry(Part.LineSegment(App.Vector(-46.4, -21.8, 0), App.Vector(-33.6, -21.8, 0)), False)
sketch6.addGeometry(Part.ArcOfCircle(Part.Circle(App.Vector(-33.6, -19.7, 0), App.Vector(0, 0, 1), 2.1), math.radians(-90), math.radians(0)), False)
sketch6.addGeometry(Part.LineSegment(App.Vector(-31.5, -19.7, 0), App.Vector(-31.5, -6.9, 0)), False)
sketch6.addGeometry(Part.ArcOfCircle(Part.Circle(App.Vector(-33.6, -6.9, 0), App.Vector(0, 0, 1), 2.1), math.radians(0), math.radians(90)), False)
sketch6.addGeometry(Part.LineSegment(App.Vector(-33.6, -4.8, 0), App.Vector(-46.4, -4.8, 0)), False)
sketch6.addGeometry(Part.ArcOfCircle(Part.Circle(App.Vector(-46.4, -6.9, 0), App.Vector(0, 0, 1), 2.1), math.radians(90), math.radians(180)), False)
sketch6.addGeometry(Part.LineSegment(App.Vector(-21.8, -6.9, 0), App.Vector(-21.8, -19.7, 0)), False)
sketch6.addGeometry(Part.ArcOfCircle(Part.Circle(App.Vector(-19.7, -19.7, 0), App.Vector(0, 0, 1), 2.1), math.radians(-180), math.radians(-90)), False)
sketch6.addGeometry(Part.LineSegment(App.Vector(-19.7, -21.8, 0), App.Vector(-6.9, -21.8, 0)), False)
sketch6.addGeometry(Part.ArcOfCircle(Part.Circle(App.Vector(-6.9, -19.7, 0), App.Vector(0, 0, 1), 2.1), math.radians(-90), math.radians(0)), False)
sketch6.addGeometry(Part.LineSegment(App.Vector(-4.8, -19.7, 0), App.Vector(-4.8, -6.9, 0)), False)
sketch6.addGeometry(Part.ArcOfCircle(Part.Circle(App.Vector(-6.9, -6.9, 0), App.Vector(0, 0, 1), 2.1), math.radians(0), math.radians(90)), False)
sketch6.addGeometry(Part.LineSegment(App.Vector(-6.9, -4.8, 0), App.Vector(-19.7, -4.8, 0)), False)
sketch6.addGeometry(Part.ArcOfCircle(Part.Circle(App.Vector(-19.7, -6.9, 0), App.Vector(0, 0, 1), 2.1), math.radians(90), math.radians(180)), False)
sketch6.addGeometry(Part.LineSegment(App.Vector(4.8, -6.9, 0), App.Vector(4.8, -19.7, 0)), False)
sketch6.addGeometry(Part.ArcOfCircle(Part.Circle(App.Vector(6.9, -19.7, 0), App.Vector(0, 0, 1), 2.1), math.radians(-180), math.radians(-90)), False)
sketch6.addGeometry(Part.LineSegment(App.Vector(6.9, -21.8, 0), App.Vector(19.7, -21.8, 0)), False)
sketch6.addGeometry(Part.ArcOfCircle(Part.Circle(App.Vector(19.7, -19.7, 0), App.Vector(0, 0, 1), 2.1), math.radians(-90), math.radians(0)), False)
sketch6.addGeometry(Part.LineSegment(App.Vector(21.8, -19.7, 0), App.Vector(21.8, -6.9, 0)), False)
sketch6.addGeometry(Part.ArcOfCircle(Part.Circle(App.Vector(19.7, -6.9, 0), App.Vector(0, 0, 1), 2.1), math.radians(0), math.radians(90)), False)
sketch6.addGeometry(Part.LineSegment(App.Vector(19.7, -4.8, 0), App.Vector(6.9, -4.8, 0)), False)
sketch6.addGeometry(Part.ArcOfCircle(Part.Circle(App.Vector(6.9, -6.9, 0), App.Vector(0, 0, 1), 2.1), math.radians(90), math.radians(180)), False)
sketch6.addGeometry(Part.LineSegment(App.Vector(31.5, -6.9, 0), App.Vector(31.5, -19.7, 0)), False)
sketch6.addGeometry(Part.ArcOfCircle(Part.Circle(App.Vector(33.6, -19.7, 0), App.Vector(0, 0, 1), 2.1), math.radians(-180), math.radians(-90)), False)
sketch6.addGeometry(Part.LineSegment(App.Vector(33.6, -21.8, 0), App.Vector(46.4, -21.8, 0)), False)
sketch6.addGeometry(Part.ArcOfCircle(Part.Circle(App.Vector(46.4, -19.7, 0), App.Vector(0, 0, 1), 2.1), math.radians(-90), math.radians(0)), False)
sketch6.addGeometry(Part.LineSegment(App.Vector(48.5, -19.7, 0), App.Vector(48.5, -6.9, 0)), False)
sketch6.addGeometry(Part.ArcOfCircle(Part.Circle(App.Vector(46.4, -6.9, 0), App.Vector(0, 0, 1), 2.1), math.radians(0), math.radians(90)), False)
sketch6.addGeometry(Part.LineSegment(App.Vector(46.4, -4.8, 0), App.Vector(33.6, -4.8, 0)), False)
sketch6.addGeometry(Part.ArcOfCircle(Part.Circle(App.Vector(33.6, -6.9, 0), App.Vector(0, 0, 1), 2.1), math.radians(90), math.radians(180)), False)
sketch6.addGeometry(Part.LineSegment(App.Vector(31.5, -33.6, 0), App.Vector(31.5, -46.4, 0)), False)
sketch6.addGeometry(Part.ArcOfCircle(Part.Circle(App.Vector(33.6, -46.4, 0), App.Vector(0, 0, 1), 2.1), math.radians(-180), math.radians(-90)), False)
sketch6.addGeometry(Part.LineSegment(App.Vector(33.6, -48.5, 0), App.Vector(46.4, -48.5, 0)), False)
sketch6.addGeometry(Part.ArcOfCircle(Part.Circle(App.Vector(46.4, -46.4, 0), App.Vector(0, 0, 1), 2.1), math.radians(-90), math.radians(0)), False)
sketch6.addGeometry(Part.LineSegment(App.Vector(48.5, -46.4, 0), App.Vector(48.5, -33.6, 0)), False)
sketch6.addGeometry(Part.ArcOfCircle(Part.Circle(App.Vector(46.4, -33.6, 0), App.Vector(0, 0, 1), 2.1), math.radians(0), math.radians(90)), False)
sketch6.addGeometry(Part.LineSegment(App.Vector(46.4, -31.5, 0), App.Vector(33.6, -31.5, 0)), False)
sketch6.addGeometry(Part.ArcOfCircle(Part.Circle(App.Vector(33.6, -33.6, 0), App.Vector(0, 0, 1), 2.1), math.radians(90), math.radians(180)), False)
sketch6.addGeometry(Part.LineSegment(App.Vector(4.8, -33.6, 0), App.Vector(4.8, -46.4, 0)), False)
sketch6.addGeometry(Part.ArcOfCircle(Part.Circle(App.Vector(6.9, -46.4, 0), App.Vector(0, 0, 1), 2.1), math.radians(-180), math.radians(-90)), False)
sketch6.addGeometry(Part.LineSegment(App.Vector(6.9, -48.5, 0), App.Vector(19.7, -48.5, 0)), False)
sketch6.addGeometry(Part.ArcOfCircle(Part.Circle(App.Vector(19.7, -46.4, 0), App.Vector(0, 0, 1), 2.1), math.radians(-90), math.radians(0)), False)
sketch6.addGeometry(Part.LineSegment(App.Vector(21.8, -46.4, 0), App.Vector(21.8, -33.6, 0)), False)
sketch6.addGeometry(Part.ArcOfCircle(Part.Circle(App.Vector(19.7, -33.6, 0), App.Vector(0, 0, 1), 2.1), math.radians(0), math.radians(90)), False)
sketch6.addGeometry(Part.LineSegment(App.Vector(19.7, -31.5, 0), App.Vector(6.9, -31.5, 0)), False)
sketch6.addGeometry(Part.ArcOfCircle(Part.Circle(App.Vector(6.9, -33.6, 0), App.Vector(0, 0, 1), 2.1), math.radians(90), math.radians(180)), False)
sketch6.addGeometry(Part.LineSegment(App.Vector(-21.8, -33.6, 0), App.Vector(-21.8, -46.4, 0)), False)
sketch6.addGeometry(Part.ArcOfCircle(Part.Circle(App.Vector(-19.7, -46.4, 0), App.Vector(0, 0, 1), 2.1), math.radians(-180), math.radians(-90)), False)
sketch6.addGeometry(Part.LineSegment(App.Vector(-19.7, -48.5, 0), App.Vector(-6.9, -48.5, 0)), False)
sketch6.addGeometry(Part.ArcOfCircle(Part.Circle(App.Vector(-6.9, -46.4, 0), App.Vector(0, 0, 1), 2.1), math.radians(-90), math.radians(0)), False)
sketch6.addGeometry(Part.LineSegment(App.Vector(-4.8, -46.4, 0), App.Vector(-4.8, -33.6, 0)), False)
sketch6.addGeometry(Part.ArcOfCircle(Part.Circle(App.Vector(-6.9, -33.6, 0), App.Vector(0, 0, 1), 2.1), math.radians(0), math.radians(90)), False)
sketch6.addGeometry(Part.LineSegment(App.Vector(-6.9, -31.5, 0), App.Vector(-19.7, -31.5, 0)), False)
sketch6.addGeometry(Part.ArcOfCircle(Part.Circle(App.Vector(-19.7, -33.6, 0), App.Vector(0, 0, 1), 2.1), math.radians(90), math.radians(180)), False)
sketch6.addGeometry(Part.LineSegment(App.Vector(-48.5, -33.6, 0), App.Vector(-48.5, -46.4, 0)), False)
sketch6.addGeometry(Part.ArcOfCircle(Part.Circle(App.Vector(-46.4, -46.4, 0), App.Vector(0, 0, 1), 2.1), math.radians(-180), math.radians(-90)), False)
sketch6.addGeometry(Part.LineSegment(App.Vector(-46.4, -48.5, 0), App.Vector(-33.6, -48.5, 0)), False)
sketch6.addGeometry(Part.ArcOfCircle(Part.Circle(App.Vector(-33.6, -46.4, 0), App.Vector(0, 0, 1), 2.1), math.radians(-90), math.radians(0)), False)
sketch6.addGeometry(Part.LineSegment(App.Vector(-31.5, -46.4, 0), App.Vector(-31.5, -33.6, 0)), False)
sketch6.addGeometry(Part.ArcOfCircle(Part.Circle(App.Vector(-33.6, -33.6, 0), App.Vector(0, 0, 1), 2.1), math.radians(0), math.radians(90)), False)
sketch6.addGeometry(Part.LineSegment(App.Vector(-33.6, -31.5, 0), App.Vector(-46.4, -31.5, 0)), False)
sketch6.addGeometry(Part.ArcOfCircle(Part.Circle(App.Vector(-46.4, -33.6, 0), App.Vector(0, 0, 1), 2.1), math.radians(90), math.radians(180)), False)
sketch6.addConstraint(Sketcher.Constraint("Tangent", 0, 2, 1, 1))
sketch6.addConstraint(Sketcher.Constraint("Tangent", 1, 2, 2, 1))
sketch6.addConstraint(Sketcher.Constraint("Tangent", 2, 2, 3, 1))
sketch6.addConstraint(Sketcher.Constraint("Tangent", 3, 2, 4, 1))
sketch6.addConstraint(Sketcher.Constraint("Tangent", 4, 2, 5, 1))
sketch6.addConstraint(Sketcher.Constraint("Tangent", 5, 2, 6, 1))
sketch6.addConstraint(Sketcher.Constraint("Tangent", 6, 2, 7, 1))
sketch6.addConstraint(Sketcher.Constraint("Tangent", 7, 2, 0, 1))
sketch6.addConstraint(Sketcher.Constraint("Tangent", 8, 2, 9, 1))
sketch6.addConstraint(Sketcher.Constraint("Tangent", 9, 2, 10, 1))
sketch6.addConstraint(Sketcher.Constraint("Tangent", 10, 2, 11, 1))
sketch6.addConstraint(Sketcher.Constraint("Tangent", 11, 2, 12, 1))
sketch6.addConstraint(Sketcher.Constraint("Tangent", 12, 2, 13, 1))
sketch6.addConstraint(Sketcher.Constraint("Tangent", 13, 2, 14, 1))
sketch6.addConstraint(Sketcher.Constraint("Tangent", 14, 2, 15, 1))
sketch6.addConstraint(Sketcher.Constraint("Tangent", 15, 2, 8, 1))
sketch6.addConstraint(Sketcher.Constraint("Tangent", 16, 2, 17, 1))
sketch6.addConstraint(Sketcher.Constraint("Tangent", 17, 2, 18, 1))
sketch6.addConstraint(Sketcher.Constraint("Tangent", 18, 2, 19, 1))
sketch6.addConstraint(Sketcher.Constraint("Tangent", 19, 2, 20, 1))
sketch6.addConstraint(Sketcher.Constraint("Tangent", 20, 2, 21, 1))
sketch6.addConstraint(Sketcher.Constraint("Tangent", 21, 2, 22, 1))
sketch6.addConstraint(Sketcher.Constraint("Tangent", 22, 2, 23, 1))
sketch6.addConstraint(Sketcher.Constraint("Tangent", 23, 2, 16, 1))
sketch6.addConstraint(Sketcher.Constraint("Tangent", 24, 2, 25, 1))
sketch6.addConstraint(Sketcher.Constraint("Tangent", 25, 2, 26, 1))
sketch6.addConstraint(Sketcher.Constraint("Tangent", 26, 2, 27, 1))
sketch6.addConstraint(Sketcher.Constraint("Tangent", 27, 2, 28, 1))
sketch6.addConstraint(Sketcher.Constraint("Tangent", 28, 2, 29, 1))
sketch6.addConstraint(Sketcher.Constraint("Tangent", 29, 2, 30, 1))
sketch6.addConstraint(Sketcher.Constraint("Tangent", 30, 2, 31, 1))
sketch6.addConstraint(Sketcher.Constraint("Tangent", 31, 2, 24, 1))
sketch6.addConstraint(Sketcher.Constraint("Tangent", 32, 2, 33, 1))
sketch6.addConstraint(Sketcher.Constraint("Tangent", 33, 2, 34, 1))
sketch6.addConstraint(Sketcher.Constraint("Tangent", 34, 2, 35, 1))
sketch6.addConstraint(Sketcher.Constraint("Tangent", 35, 2, 36, 1))
sketch6.addConstraint(Sketcher.Constraint("Tangent", 36, 2, 37, 1))
sketch6.addConstraint(Sketcher.Constraint("Tangent", 37, 2, 38, 1))
sketch6.addConstraint(Sketcher.Constraint("Tangent", 38, 2, 39, 1))
sketch6.addConstraint(Sketcher.Constraint("Tangent", 39, 2, 32, 1))
sketch6.addConstraint(Sketcher.Constraint("Tangent", 40, 2, 41, 1))
sketch6.addConstraint(Sketcher.Constraint("Tangent", 41, 2, 42, 1))
sketch6.addConstraint(Sketcher.Constraint("Tangent", 42, 2, 43, 1))
sketch6.addConstraint(Sketcher.Constraint("Tangent", 43, 2, 44, 1))
sketch6.addConstraint(Sketcher.Constraint("Tangent", 44, 2, 45, 1))
sketch6.addConstraint(Sketcher.Constraint("Tangent", 45, 2, 46, 1))
sketch6.addConstraint(Sketcher.Constraint("Tangent", 46, 2, 47, 1))
sketch6.addConstraint(Sketcher.Constraint("Tangent", 47, 2, 40, 1))
sketch6.addConstraint(Sketcher.Constraint("Tangent", 48, 2, 49, 1))
sketch6.addConstraint(Sketcher.Constraint("Tangent", 49, 2, 50, 1))
sketch6.addConstraint(Sketcher.Constraint("Tangent", 50, 2, 51, 1))
sketch6.addConstraint(Sketcher.Constraint("Tangent", 51, 2, 52, 1))
sketch6.addConstraint(Sketcher.Constraint("Tangent", 52, 2, 53, 1))
sketch6.addConstraint(Sketcher.Constraint("Tangent", 53, 2, 54, 1))
sketch6.addConstraint(Sketcher.Constraint("Tangent", 54, 2, 55, 1))
sketch6.addConstraint(Sketcher.Constraint("Tangent", 55, 2, 48, 1))
sketch6.addConstraint(Sketcher.Constraint("Tangent", 56, 2, 57, 1))
sketch6.addConstraint(Sketcher.Constraint("Tangent", 57, 2, 58, 1))
sketch6.addConstraint(Sketcher.Constraint("Tangent", 58, 2, 59, 1))
sketch6.addConstraint(Sketcher.Constraint("Tangent", 59, 2, 60, 1))
sketch6.addConstraint(Sketcher.Constraint("Tangent", 60, 2, 61, 1))
sketch6.addConstraint(Sketcher.Constraint("Tangent", 61, 2, 62, 1))
sketch6.addConstraint(Sketcher.Constraint("Tangent", 62, 2, 63, 1))
sketch6.addConstraint(Sketcher.Constraint("Tangent", 63, 2, 56, 1))
sketch6.addConstraint(Sketcher.Constraint("Vertical", 0))
sketch6.addConstraint(Sketcher.Constraint("Horizontal", 2))
sketch6.addConstraint(Sketcher.Constraint("Vertical", 4))
sketch6.addConstraint(Sketcher.Constraint("Horizontal", 6))
sketch6.addConstraint(Sketcher.Constraint("Vertical", 8))
sketch6.addConstraint(Sketcher.Constraint("Horizontal", 10))
sketch6.addConstraint(Sketcher.Constraint("Vertical", 12))
sketch6.addConstraint(Sketcher.Constraint("Horizontal", 14))
sketch6.addConstraint(Sketcher.Constraint("Vertical", 16))
sketch6.addConstraint(Sketcher.Constraint("Horizontal", 18))
sketch6.addConstraint(Sketcher.Constraint("Vertical", 20))
sketch6.addConstraint(Sketcher.Constraint("Horizontal", 22))
sketch6.addConstraint(Sketcher.Constraint("Vertical", 24))
sketch6.addConstraint(Sketcher.Constraint("Horizontal", 26))
sketch6.addConstraint(Sketcher.Constraint("Vertical", 28))
sketch6.addConstraint(Sketcher.Constraint("Horizontal", 30))
sketch6.addConstraint(Sketcher.Constraint("Vertical", 32))
sketch6.addConstraint(Sketcher.Constraint("Horizontal", 34))
sketch6.addConstraint(Sketcher.Constraint("Vertical", 36))
sketch6.addConstraint(Sketcher.Constraint("Horizontal", 38))
sketch6.addConstraint(Sketcher.Constraint("Vertical", 40))
sketch6.addConstraint(Sketcher.Constraint("Horizontal", 42))
sketch6.addConstraint(Sketcher.Constraint("Vertical", 44))
sketch6.addConstraint(Sketcher.Constraint("Horizontal", 46))
sketch6.addConstraint(Sketcher.Constraint("Vertical", 48))
sketch6.addConstraint(Sketcher.Constraint("Horizontal", 50))
sketch6.addConstraint(Sketcher.Constraint("Vertical", 52))
sketch6.addConstraint(Sketcher.Constraint("Horizontal", 54))
sketch6.addConstraint(Sketcher.Constraint("Vertical", 56))
sketch6.addConstraint(Sketcher.Constraint("Horizontal", 58))
sketch6.addConstraint(Sketcher.Constraint("Vertical", 60))
sketch6.addConstraint(Sketcher.Constraint("Horizontal", 62))
sketch6.addConstraint(Sketcher.Constraint("Equal", 1, 3))
sketch6.addConstraint(Sketcher.Constraint("Equal", 3, 5))
sketch6.addConstraint(Sketcher.Constraint("Equal", 5, 7))
sketch6.addConstraint(Sketcher.Constraint("Equal", 7, 9))
sketch6.addConstraint(Sketcher.Constraint("Equal", 9, 11))
sketch6.addConstraint(Sketcher.Constraint("Equal", 11, 13))
sketch6.addConstraint(Sketcher.Constraint("Equal", 13, 15))
sketch6.addConstraint(Sketcher.Constraint("Equal", 15, 17))
sketch6.addConstraint(Sketcher.Constraint("Equal", 17, 19))
sketch6.addConstraint(Sketcher.Constraint("Equal", 19, 21))
sketch6.addConstraint(Sketcher.Constraint("Equal", 21, 23))
sketch6.addConstraint(Sketcher.Constraint("Equal", 23, 25))
sketch6.addConstraint(Sketcher.Constraint("Equal", 25, 27))
sketch6.addConstraint(Sketcher.Constraint("Equal", 27, 29))
sketch6.addConstraint(Sketcher.Constraint("Equal", 29, 31))
sketch6.addConstraint(Sketcher.Constraint("Equal", 31, 33))
sketch6.addConstraint(Sketcher.Constraint("Equal", 33, 35))
sketch6.addConstraint(Sketcher.Constraint("Equal", 35, 37))
sketch6.addConstraint(Sketcher.Constraint("Equal", 37, 39))
sketch6.addConstraint(Sketcher.Constraint("Equal", 39, 41))
sketch6.addConstraint(Sketcher.Constraint("Equal", 41, 43))
sketch6.addConstraint(Sketcher.Constraint("Equal", 43, 45))
sketch6.addConstraint(Sketcher.Constraint("Equal", 45, 47))
sketch6.addConstraint(Sketcher.Constraint("Equal", 47, 49))
sketch6.addConstraint(Sketcher.Constraint("Equal", 49, 51))
sketch6.addConstraint(Sketcher.Constraint("Equal", 51, 53))
sketch6.addConstraint(Sketcher.Constraint("Equal", 53, 55))
sketch6.addConstraint(Sketcher.Constraint("Equal", 55, 57))
sketch6.addConstraint(Sketcher.Constraint("Equal", 57, 59))
sketch6.addConstraint(Sketcher.Constraint("Equal", 59, 61))
sketch6.addConstraint(Sketcher.Constraint("Equal", 61, 63))
sketch6.addConstraint(Sketcher.Constraint("Symmetric", 11, 3, 17, 3, -2))
sketch6.addConstraint(Sketcher.Constraint("Symmetric", 15, 3, 21, 3, -2))
sketch6.addConstraint(Sketcher.Constraint("Symmetric", 3, 3, 25, 3, -2))
sketch6.addConstraint(Sketcher.Constraint("Symmetric", 7, 3, 29, 3, -2))
sketch6.addConstraint(Sketcher.Constraint("Symmetric", 43, 3, 49, 3, -2))
sketch6.addConstraint(Sketcher.Constraint("Symmetric", 47, 3, 53, 3, -2))
sketch6.addConstraint(Sketcher.Constraint("Symmetric", 35, 3, 57, 3, -2))
sketch6.addConstraint(Sketcher.Constraint("Symmetric", 39, 3, 61, 3, -2))
sketch6.addConstraint(Sketcher.Constraint("Horizontal", 3, 3, 9, 3))
sketch6.addConstraint(Sketcher.Constraint("Horizontal", 7, 3, 13, 3))
sketch6.addConstraint(Sketcher.Constraint("Horizontal", 35, 3, 41, 3))
sketch6.addConstraint(Sketcher.Constraint("Horizontal", 39, 3, 45, 3))
sketch6.addConstraint(Sketcher.Constraint("Vertical", 31, 3, 33, 3))
sketch6.addConstraint(Sketcher.Constraint("Vertical", 29, 3, 35, 3))
sketch6.addConstraint(Sketcher.Constraint("Vertical", 23, 3, 41, 3))
sketch6.addConstraint(Sketcher.Constraint("Vertical", 21, 3, 43, 3))
sketch6.addConstraint(Sketcher.Constraint("Equal", 6, 10))
sketch6.addConstraint(Sketcher.Constraint("Equal", 62, 0))
sketch6.addConstraint(Sketcher.Constraint("Equal", 28, 32))
sketch6.addConstraint(Sketcher.Constraint("Radius", 1, 2.100001))
sketch6.addConstraint(Sketcher.Constraint("DistanceX", 2, 1, 2, 2, 12.8))
sketch6.addConstraint(Sketcher.Constraint("DistanceX", 1, 3, -1, 1, 46.404999))
sketch6.addConstraint(Sketcher.Constraint("DistanceY", 1, 3, -1, 1, 19.734999))
sketch6.addConstraint(Sketcher.Constraint("DistanceX", 9, 3, -1, 1, 19.734999))
sketch6.addConstraint(Sketcher.Constraint("DistanceY", 33, 3, -1, 1, 46.404999))
pocket4 = body.newObject("PartDesign::Pocket", "Pocket003")
pocket4.Profile = sketch6
pocket4.Type = "ThroughAll"

doc.recompute()
